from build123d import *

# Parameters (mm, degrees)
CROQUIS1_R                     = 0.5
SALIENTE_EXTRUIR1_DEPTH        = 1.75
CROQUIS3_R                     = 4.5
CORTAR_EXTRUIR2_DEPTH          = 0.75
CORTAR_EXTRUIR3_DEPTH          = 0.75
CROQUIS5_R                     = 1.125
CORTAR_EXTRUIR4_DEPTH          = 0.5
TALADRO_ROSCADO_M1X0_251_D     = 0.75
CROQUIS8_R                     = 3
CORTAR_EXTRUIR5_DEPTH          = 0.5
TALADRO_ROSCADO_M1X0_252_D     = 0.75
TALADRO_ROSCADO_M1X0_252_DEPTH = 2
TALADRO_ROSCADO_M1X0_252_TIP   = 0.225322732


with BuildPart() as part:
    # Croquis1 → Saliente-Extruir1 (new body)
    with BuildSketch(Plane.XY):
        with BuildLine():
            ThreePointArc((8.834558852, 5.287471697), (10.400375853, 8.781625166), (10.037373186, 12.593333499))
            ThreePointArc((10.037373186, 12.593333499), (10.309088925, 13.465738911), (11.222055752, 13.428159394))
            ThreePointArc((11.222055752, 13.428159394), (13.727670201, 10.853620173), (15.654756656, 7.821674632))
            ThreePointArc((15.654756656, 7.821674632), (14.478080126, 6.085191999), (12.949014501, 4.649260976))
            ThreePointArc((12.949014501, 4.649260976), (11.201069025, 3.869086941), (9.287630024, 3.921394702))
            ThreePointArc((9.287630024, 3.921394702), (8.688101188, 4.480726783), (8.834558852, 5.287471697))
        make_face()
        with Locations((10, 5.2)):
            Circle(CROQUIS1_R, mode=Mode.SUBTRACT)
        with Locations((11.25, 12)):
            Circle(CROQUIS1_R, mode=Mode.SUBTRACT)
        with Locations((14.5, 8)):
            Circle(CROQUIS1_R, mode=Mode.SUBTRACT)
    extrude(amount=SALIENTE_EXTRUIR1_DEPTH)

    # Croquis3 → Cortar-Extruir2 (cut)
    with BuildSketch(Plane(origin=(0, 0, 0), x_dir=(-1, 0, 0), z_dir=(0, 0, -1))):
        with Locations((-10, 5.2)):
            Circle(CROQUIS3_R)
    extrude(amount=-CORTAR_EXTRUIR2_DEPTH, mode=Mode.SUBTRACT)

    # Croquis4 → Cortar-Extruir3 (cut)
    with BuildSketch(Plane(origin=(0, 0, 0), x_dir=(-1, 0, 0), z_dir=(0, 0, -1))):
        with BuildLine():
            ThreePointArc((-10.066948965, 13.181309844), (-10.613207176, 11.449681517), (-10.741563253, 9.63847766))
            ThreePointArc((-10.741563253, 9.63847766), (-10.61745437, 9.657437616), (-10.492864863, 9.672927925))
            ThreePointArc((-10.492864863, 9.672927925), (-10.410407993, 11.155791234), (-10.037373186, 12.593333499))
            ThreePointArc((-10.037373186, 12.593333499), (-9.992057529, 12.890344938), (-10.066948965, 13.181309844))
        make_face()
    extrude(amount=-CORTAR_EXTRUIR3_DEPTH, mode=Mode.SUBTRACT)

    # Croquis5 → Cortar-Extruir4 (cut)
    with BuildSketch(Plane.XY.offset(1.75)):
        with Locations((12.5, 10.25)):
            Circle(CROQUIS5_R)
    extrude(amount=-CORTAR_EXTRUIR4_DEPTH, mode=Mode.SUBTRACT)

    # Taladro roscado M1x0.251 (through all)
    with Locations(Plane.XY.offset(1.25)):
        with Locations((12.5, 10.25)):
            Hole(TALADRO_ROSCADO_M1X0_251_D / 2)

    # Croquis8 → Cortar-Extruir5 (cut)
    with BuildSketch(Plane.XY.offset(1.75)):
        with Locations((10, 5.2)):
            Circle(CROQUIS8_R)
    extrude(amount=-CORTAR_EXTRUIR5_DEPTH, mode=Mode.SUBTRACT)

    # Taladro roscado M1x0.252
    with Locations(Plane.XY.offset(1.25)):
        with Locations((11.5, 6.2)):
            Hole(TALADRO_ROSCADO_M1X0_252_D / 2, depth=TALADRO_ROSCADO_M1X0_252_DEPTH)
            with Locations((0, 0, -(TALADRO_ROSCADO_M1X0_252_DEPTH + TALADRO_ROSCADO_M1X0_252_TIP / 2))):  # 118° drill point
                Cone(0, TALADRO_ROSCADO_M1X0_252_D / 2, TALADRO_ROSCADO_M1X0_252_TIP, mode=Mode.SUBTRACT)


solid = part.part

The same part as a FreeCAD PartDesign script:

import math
import FreeCAD as App
import Part
import Sketcher
from FreeCAD import Vector
Q = App.Units.Quantity

doc = App.newDocument("Part")
body = doc.addObject("PartDesign::Body", "Body")

# Sketch on XY plane
sketch1 = doc.addObject("Sketcher::SketchObject", "Sketch")
body.addObject(sketch1)
sketch1.AttachmentSupport = (doc.XY_Plane, [""])
sketch1.MapMode = "FlatFace"
sketch1.addGeometry([
    Part.ArcOfCircle(Part.Circle(Vector(3, 10, 0), Vector(0, 0, 1), 7.5), math.radians(-38.927544), math.radians(20.229283)),  # 0
    Part.ArcOfCircle(Part.Circle(Vector(9.5, 4.75, 0), Vector(0, 0, 1), 0.855387), math.radians(141.072456), math.radians(255.624634)),  # 1
    Part.ArcOfCircle(Part.Circle(Vector(10.359378, 8.103042, 0), Vector(0, 0, 1), 4.316807), math.radians(-104.375366), math.radians(-53.137532)),  # 2
    Part.ArcOfCircle(Part.Circle(Vector(7.25, 12.25, 0), Vector(0, 0, 1), 9.5), math.radians(-53.137532), math.radians(-27.783994)),  # 3
    Part.ArcOfCircle(Part.Circle(Vector(0, 0, 0), Vector(0, 0, 1), 17.5), math.radians(26.548349), math.radians(50.114137)),  # 4
    Part.ArcOfCircle(Part.Circle(Vector(10.741111, 12.852667, 0), Vector(0, 0, 1), 0.75), math.radians(50.114137), math.radians(200.229283)),  # 5
    Part.Circle(Vector(14.5, 8, 0), Vector(0, 0, 1), 0.5),  # 6
    Part.Circle(Vector(10, 5.2, 0), Vector(0, 0, 1), 0.5),  # 7
    Part.Circle(Vector(11.25, 12, 0), Vector(0, 0, 1), 0.5),  # 8
], False)
sketch1.addConstraint([
    Sketcher.Constraint("Tangent", 0, 1, 1, 1),
    Sketcher.Constraint("Tangent", 1, 2, 2, 1),
    Sketcher.Constraint("Tangent", 2, 2, 3, 1),
    Sketcher.Constraint("Coincident", 3, 2, 4, 1),
    Sketcher.Constraint("Tangent", 4, 2, 5, 1),
    Sketcher.Constraint("Tangent", 5, 2, 0, 2),
    Sketcher.Constraint("Coincident", 4, 3, -1, 1),
    Sketcher.Constraint("Equal", 6, 7),
    Sketcher.Constraint("Equal", 7, 8),
    Sketcher.Constraint("Diameter", 6, Q("1 mm")),
    Sketcher.Constraint("Radius", 0, Q("7.5 mm")),
    Sketcher.Constraint("Radius", 3, Q("9.5 mm")),
    Sketcher.Constraint("Radius", 4, Q("17.5 mm")),
    Sketcher.Constraint("Radius", 5, Q("0.75 mm")),
    Sketcher.Constraint("DistanceX", -1, 1, 0, 3, Q("3 mm")),
    Sketcher.Constraint("DistanceY", -1, 1, 0, 3, Q("10 mm")),
    Sketcher.Constraint("DistanceY", -1, 1, 6, 3, Q("8 mm")),
    Sketcher.Constraint("DistanceX", -1, 1, 7, 3, Q("10 mm")),
    Sketcher.Constraint("DistanceY", -1, 1, 8, 3, Q("12 mm")),
    Sketcher.Constraint("DistanceX", 1, 3, 6, 3, Q("5 mm")),
    Sketcher.Constraint("DistanceX", 3, 3, 8, 3, Q("4 mm")),
    Sketcher.Constraint("DistanceX", -1, 1, 1, 3, Q("9.5 mm")),
    Sketcher.Constraint("DistanceY", -1, 1, 7, 3, Q("5.2 mm")),
    Sketcher.Constraint("DistanceY", 1, 3, 3, 3, Q("7.5 mm")),
    Sketcher.Constraint("DistanceY", -1, 1, 1, 3, Q("4.75 mm")),
    Sketcher.Constraint("DistanceX", -1, 1, 3, 3, Q("7.25 mm")),
    Sketcher.Constraint("Radius", 2, Q("4.316807 mm")),
])
pad1 = doc.addObject("PartDesign::Pad", "Pad")
body.addObject(pad1)
pad1.Profile = sketch1
pad1.Length = 1.75

# Sketch on XY plane
sketch2 = doc.addObject("Sketcher::SketchObject", "Sketch001")
body.addObject(sketch2)
sketch2.AttachmentSupport = (doc.XY_Plane, [""])
sketch2.MapMode = "FlatFace"
sketch2.addGeometry(Part.Circle(Vector(10, 5.2, 0), Vector(0, 0, 1), 4.5), False)
sketch2.addConstraint([
    Sketcher.Constraint("Diameter", 0, Q("9 mm")),
    Sketcher.Constraint("DistanceX", -1, 1, 0, 3, Q("10 mm")),
    Sketcher.Constraint("DistanceY", -1, 1, 0, 3, Q("5.2 mm")),
])
pocket1 = doc.addObject("PartDesign::Pocket", "Pocket")
body.addObject(pocket1)
pocket1.Profile = sketch2
pocket1.Length = 0.75
pocket1.Reversed = True

# Sketch on XY plane
sketch3 = doc.addObject("Sketcher::SketchObject", "Sketch002")
body.addObject(sketch3)
sketch3.AttachmentSupport = (doc.XY_Plane, [""])
sketch3.MapMode = "FlatFace"
sketch3.addGeometry([
    Part.ArcOfCircle(Part.Circle(Vector(3, 10, 0), Vector(0, 0, 1), 7.75), math.radians(-2.673706), math.radians(24.23572)),
    Part.ArcOfCircle(Part.Circle(Vector(10, 5.200001, 0), Vector(0, 0, 1), 4.499999), math.radians(80.514858), math.radians(83.712035)),
    Part.ArcOfCircle(Part.Circle(Vector(3, 10, 0), Vector(0, 0, 1), 7.5), math.radians(-2.499439), math.radians(20.229283)),
    Part.ArcOfCircle(Part.Circle(Vector(10.741111, 12.852667, 0), Vector(0, 0, 1), 0.75), math.radians(154.011505), math.radians(200.229282)),
], False)
sketch3.addConstraint([
    Sketcher.Constraint("Coincident", 0, 1, 1, 1),
    Sketcher.Constraint("Coincident", 1, 2, 2, 1),
    Sketcher.Constraint("Tangent", 2, 2, 3, 2),
    Sketcher.Constraint("Coincident", 3, 1, 0, 2),
    Sketcher.Constraint("Coincident", 2, 3, 0, 3),
    Sketcher.Constraint("Radius", 1, Q("4.499999 mm")),
    Sketcher.Constraint("Radius", 2, Q("7.5 mm")),
    Sketcher.Constraint("Radius", 0, Q("7.75 mm")),
    Sketcher.Constraint("Radius", 3, Q("0.75 mm")),
    Sketcher.Constraint("DistanceX", -1, 1, 0, 3, Q("3 mm")),
    Sketcher.Constraint("DistanceY", -1, 1, 0, 3, Q("10 mm")),
    Sketcher.Constraint("DistanceX", -1, 1, 1, 3, Q("10 mm")),
    Sketcher.Constraint("DistanceY", -1, 1, 1, 3, Q("5.200001 mm")),
    Sketcher.Constraint("DistanceX", -1, 1, 3, 3, Q("10.741111 mm")),
])
pocket2 = doc.addObject("PartDesign::Pocket", "Pocket001")
body.addObject(pocket2)
pocket2.Profile = sketch3
pocket2.Length = 0.75
pocket2.Reversed = True

# Sketch on XY plane
sketch4 = doc.addObject("Sketcher::SketchObject", "Sketch003")
body.addObject(sketch4)
sketch4.AttachmentSupport = (doc.XY_Plane, [""])
sketch4.MapMode = "FlatFace"
sketch4.AttachmentOffset = App.Placement(Vector(0, 0, 1.75), App.Rotation())
sketch4.addGeometry(Part.Circle(Vector(12.5, 10.25, 0), Vector(0, 0, 1), 1.125), False)
sketch4.addConstraint([
    Sketcher.Constraint("Diameter", 0, Q("2.25 mm")),
    Sketcher.Constraint("DistanceX", -1, 1, 0, 3, Q("12.5 mm")),
    Sketcher.Constraint("DistanceY", -1, 1, 0, 3, Q("10.25 mm")),
])
pocket3 = doc.addObject("PartDesign::Pocket", "Pocket002")
body.addObject(pocket3)
pocket3.Profile = sketch4
pocket3.Length = 0.5

# Sketch on XY plane
sketch5 = doc.addObject("Sketcher::SketchObject", "Sketch004")
body.addObject(sketch5)
sketch5.AttachmentSupport = (doc.XY_Plane, [""])
sketch5.MapMode = "FlatFace"
sketch5.AttachmentOffset = App.Placement(Vector(0, 0, 1.25), App.Rotation())
sketch5.addGeometry(Part.Circle(Vector(12.5, 10.25, 0), Vector(0, 0, 1), 0.375), False)
sketch5.addConstraint([
    Sketcher.Constraint("Diameter", 0, Q("0.75 mm")),
    Sketcher.Constraint("DistanceX", -1, 1, 0, 3, Q("12.5 mm")),
    Sketcher.Constraint("DistanceY", -1, 1, 0, 3, Q("10.25 mm")),
])
doc.recompute()
hole = doc.addObject("PartDesign::Hole", "Hole")
body.addObject(hole)
hole.Profile = sketch5
hole.ThreadType = "None"
hole.Diameter = 0.75
hole.DepthType = "ThroughAll"

# Sketch on XY plane
sketch6 = doc.addObject("Sketcher::SketchObject", "Sketch005")
body.addObject(sketch6)
sketch6.AttachmentSupport = (doc.XY_Plane, [""])
sketch6.MapMode = "FlatFace"
sketch6.AttachmentOffset = App.Placement(Vector(0, 0, 1.75), App.Rotation())
sketch6.addGeometry(Part.Circle(Vector(10, 5.2, 0), Vector(0, 0, 1), 3), False)
sketch6.addConstraint([
    Sketcher.Constraint("Diameter", 0, Q("6 mm")),
    Sketcher.Constraint("DistanceX", -1, 1, 0, 3, Q("10 mm")),
    Sketcher.Constraint("DistanceY", -1, 1, 0, 3, Q("5.2 mm")),
])
pocket4 = doc.addObject("PartDesign::Pocket", "Pocket003")
body.addObject(pocket4)
pocket4.Profile = sketch6
pocket4.Length = 0.5

# Sketch on XY plane
sketch7 = doc.addObject("Sketcher::SketchObject", "Sketch006")
body.addObject(sketch7)
sketch7.AttachmentSupport = (doc.XY_Plane, [""])
sketch7.MapMode = "FlatFace"
sketch7.AttachmentOffset = App.Placement(Vector(0, 0, 1.25), App.Rotation())
sketch7.addGeometry(Part.Circle(Vector(11.5, 6.2, 0), Vector(0, 0, 1), 0.375), False)
sketch7.addConstraint([
    Sketcher.Constraint("Diameter", 0, Q("0.75 mm")),
    Sketcher.Constraint("DistanceX", -1, 1, 0, 3, Q("11.5 mm")),
    Sketcher.Constraint("DistanceY", -1, 1, 0, 3, Q("6.2 mm")),
])
doc.recompute()
hole2 = doc.addObject("PartDesign::Hole", "Hole001")
body.addObject(hole2)
hole2.Profile = sketch7
hole2.ThreadType = "None"
hole2.Diameter = 0.75
hole2.DepthType = "Dimension"
hole2.Depth = 2
hole2.DrillPoint = "Angled"
hole2.DrillPointAngle = 118

doc.recompute()
